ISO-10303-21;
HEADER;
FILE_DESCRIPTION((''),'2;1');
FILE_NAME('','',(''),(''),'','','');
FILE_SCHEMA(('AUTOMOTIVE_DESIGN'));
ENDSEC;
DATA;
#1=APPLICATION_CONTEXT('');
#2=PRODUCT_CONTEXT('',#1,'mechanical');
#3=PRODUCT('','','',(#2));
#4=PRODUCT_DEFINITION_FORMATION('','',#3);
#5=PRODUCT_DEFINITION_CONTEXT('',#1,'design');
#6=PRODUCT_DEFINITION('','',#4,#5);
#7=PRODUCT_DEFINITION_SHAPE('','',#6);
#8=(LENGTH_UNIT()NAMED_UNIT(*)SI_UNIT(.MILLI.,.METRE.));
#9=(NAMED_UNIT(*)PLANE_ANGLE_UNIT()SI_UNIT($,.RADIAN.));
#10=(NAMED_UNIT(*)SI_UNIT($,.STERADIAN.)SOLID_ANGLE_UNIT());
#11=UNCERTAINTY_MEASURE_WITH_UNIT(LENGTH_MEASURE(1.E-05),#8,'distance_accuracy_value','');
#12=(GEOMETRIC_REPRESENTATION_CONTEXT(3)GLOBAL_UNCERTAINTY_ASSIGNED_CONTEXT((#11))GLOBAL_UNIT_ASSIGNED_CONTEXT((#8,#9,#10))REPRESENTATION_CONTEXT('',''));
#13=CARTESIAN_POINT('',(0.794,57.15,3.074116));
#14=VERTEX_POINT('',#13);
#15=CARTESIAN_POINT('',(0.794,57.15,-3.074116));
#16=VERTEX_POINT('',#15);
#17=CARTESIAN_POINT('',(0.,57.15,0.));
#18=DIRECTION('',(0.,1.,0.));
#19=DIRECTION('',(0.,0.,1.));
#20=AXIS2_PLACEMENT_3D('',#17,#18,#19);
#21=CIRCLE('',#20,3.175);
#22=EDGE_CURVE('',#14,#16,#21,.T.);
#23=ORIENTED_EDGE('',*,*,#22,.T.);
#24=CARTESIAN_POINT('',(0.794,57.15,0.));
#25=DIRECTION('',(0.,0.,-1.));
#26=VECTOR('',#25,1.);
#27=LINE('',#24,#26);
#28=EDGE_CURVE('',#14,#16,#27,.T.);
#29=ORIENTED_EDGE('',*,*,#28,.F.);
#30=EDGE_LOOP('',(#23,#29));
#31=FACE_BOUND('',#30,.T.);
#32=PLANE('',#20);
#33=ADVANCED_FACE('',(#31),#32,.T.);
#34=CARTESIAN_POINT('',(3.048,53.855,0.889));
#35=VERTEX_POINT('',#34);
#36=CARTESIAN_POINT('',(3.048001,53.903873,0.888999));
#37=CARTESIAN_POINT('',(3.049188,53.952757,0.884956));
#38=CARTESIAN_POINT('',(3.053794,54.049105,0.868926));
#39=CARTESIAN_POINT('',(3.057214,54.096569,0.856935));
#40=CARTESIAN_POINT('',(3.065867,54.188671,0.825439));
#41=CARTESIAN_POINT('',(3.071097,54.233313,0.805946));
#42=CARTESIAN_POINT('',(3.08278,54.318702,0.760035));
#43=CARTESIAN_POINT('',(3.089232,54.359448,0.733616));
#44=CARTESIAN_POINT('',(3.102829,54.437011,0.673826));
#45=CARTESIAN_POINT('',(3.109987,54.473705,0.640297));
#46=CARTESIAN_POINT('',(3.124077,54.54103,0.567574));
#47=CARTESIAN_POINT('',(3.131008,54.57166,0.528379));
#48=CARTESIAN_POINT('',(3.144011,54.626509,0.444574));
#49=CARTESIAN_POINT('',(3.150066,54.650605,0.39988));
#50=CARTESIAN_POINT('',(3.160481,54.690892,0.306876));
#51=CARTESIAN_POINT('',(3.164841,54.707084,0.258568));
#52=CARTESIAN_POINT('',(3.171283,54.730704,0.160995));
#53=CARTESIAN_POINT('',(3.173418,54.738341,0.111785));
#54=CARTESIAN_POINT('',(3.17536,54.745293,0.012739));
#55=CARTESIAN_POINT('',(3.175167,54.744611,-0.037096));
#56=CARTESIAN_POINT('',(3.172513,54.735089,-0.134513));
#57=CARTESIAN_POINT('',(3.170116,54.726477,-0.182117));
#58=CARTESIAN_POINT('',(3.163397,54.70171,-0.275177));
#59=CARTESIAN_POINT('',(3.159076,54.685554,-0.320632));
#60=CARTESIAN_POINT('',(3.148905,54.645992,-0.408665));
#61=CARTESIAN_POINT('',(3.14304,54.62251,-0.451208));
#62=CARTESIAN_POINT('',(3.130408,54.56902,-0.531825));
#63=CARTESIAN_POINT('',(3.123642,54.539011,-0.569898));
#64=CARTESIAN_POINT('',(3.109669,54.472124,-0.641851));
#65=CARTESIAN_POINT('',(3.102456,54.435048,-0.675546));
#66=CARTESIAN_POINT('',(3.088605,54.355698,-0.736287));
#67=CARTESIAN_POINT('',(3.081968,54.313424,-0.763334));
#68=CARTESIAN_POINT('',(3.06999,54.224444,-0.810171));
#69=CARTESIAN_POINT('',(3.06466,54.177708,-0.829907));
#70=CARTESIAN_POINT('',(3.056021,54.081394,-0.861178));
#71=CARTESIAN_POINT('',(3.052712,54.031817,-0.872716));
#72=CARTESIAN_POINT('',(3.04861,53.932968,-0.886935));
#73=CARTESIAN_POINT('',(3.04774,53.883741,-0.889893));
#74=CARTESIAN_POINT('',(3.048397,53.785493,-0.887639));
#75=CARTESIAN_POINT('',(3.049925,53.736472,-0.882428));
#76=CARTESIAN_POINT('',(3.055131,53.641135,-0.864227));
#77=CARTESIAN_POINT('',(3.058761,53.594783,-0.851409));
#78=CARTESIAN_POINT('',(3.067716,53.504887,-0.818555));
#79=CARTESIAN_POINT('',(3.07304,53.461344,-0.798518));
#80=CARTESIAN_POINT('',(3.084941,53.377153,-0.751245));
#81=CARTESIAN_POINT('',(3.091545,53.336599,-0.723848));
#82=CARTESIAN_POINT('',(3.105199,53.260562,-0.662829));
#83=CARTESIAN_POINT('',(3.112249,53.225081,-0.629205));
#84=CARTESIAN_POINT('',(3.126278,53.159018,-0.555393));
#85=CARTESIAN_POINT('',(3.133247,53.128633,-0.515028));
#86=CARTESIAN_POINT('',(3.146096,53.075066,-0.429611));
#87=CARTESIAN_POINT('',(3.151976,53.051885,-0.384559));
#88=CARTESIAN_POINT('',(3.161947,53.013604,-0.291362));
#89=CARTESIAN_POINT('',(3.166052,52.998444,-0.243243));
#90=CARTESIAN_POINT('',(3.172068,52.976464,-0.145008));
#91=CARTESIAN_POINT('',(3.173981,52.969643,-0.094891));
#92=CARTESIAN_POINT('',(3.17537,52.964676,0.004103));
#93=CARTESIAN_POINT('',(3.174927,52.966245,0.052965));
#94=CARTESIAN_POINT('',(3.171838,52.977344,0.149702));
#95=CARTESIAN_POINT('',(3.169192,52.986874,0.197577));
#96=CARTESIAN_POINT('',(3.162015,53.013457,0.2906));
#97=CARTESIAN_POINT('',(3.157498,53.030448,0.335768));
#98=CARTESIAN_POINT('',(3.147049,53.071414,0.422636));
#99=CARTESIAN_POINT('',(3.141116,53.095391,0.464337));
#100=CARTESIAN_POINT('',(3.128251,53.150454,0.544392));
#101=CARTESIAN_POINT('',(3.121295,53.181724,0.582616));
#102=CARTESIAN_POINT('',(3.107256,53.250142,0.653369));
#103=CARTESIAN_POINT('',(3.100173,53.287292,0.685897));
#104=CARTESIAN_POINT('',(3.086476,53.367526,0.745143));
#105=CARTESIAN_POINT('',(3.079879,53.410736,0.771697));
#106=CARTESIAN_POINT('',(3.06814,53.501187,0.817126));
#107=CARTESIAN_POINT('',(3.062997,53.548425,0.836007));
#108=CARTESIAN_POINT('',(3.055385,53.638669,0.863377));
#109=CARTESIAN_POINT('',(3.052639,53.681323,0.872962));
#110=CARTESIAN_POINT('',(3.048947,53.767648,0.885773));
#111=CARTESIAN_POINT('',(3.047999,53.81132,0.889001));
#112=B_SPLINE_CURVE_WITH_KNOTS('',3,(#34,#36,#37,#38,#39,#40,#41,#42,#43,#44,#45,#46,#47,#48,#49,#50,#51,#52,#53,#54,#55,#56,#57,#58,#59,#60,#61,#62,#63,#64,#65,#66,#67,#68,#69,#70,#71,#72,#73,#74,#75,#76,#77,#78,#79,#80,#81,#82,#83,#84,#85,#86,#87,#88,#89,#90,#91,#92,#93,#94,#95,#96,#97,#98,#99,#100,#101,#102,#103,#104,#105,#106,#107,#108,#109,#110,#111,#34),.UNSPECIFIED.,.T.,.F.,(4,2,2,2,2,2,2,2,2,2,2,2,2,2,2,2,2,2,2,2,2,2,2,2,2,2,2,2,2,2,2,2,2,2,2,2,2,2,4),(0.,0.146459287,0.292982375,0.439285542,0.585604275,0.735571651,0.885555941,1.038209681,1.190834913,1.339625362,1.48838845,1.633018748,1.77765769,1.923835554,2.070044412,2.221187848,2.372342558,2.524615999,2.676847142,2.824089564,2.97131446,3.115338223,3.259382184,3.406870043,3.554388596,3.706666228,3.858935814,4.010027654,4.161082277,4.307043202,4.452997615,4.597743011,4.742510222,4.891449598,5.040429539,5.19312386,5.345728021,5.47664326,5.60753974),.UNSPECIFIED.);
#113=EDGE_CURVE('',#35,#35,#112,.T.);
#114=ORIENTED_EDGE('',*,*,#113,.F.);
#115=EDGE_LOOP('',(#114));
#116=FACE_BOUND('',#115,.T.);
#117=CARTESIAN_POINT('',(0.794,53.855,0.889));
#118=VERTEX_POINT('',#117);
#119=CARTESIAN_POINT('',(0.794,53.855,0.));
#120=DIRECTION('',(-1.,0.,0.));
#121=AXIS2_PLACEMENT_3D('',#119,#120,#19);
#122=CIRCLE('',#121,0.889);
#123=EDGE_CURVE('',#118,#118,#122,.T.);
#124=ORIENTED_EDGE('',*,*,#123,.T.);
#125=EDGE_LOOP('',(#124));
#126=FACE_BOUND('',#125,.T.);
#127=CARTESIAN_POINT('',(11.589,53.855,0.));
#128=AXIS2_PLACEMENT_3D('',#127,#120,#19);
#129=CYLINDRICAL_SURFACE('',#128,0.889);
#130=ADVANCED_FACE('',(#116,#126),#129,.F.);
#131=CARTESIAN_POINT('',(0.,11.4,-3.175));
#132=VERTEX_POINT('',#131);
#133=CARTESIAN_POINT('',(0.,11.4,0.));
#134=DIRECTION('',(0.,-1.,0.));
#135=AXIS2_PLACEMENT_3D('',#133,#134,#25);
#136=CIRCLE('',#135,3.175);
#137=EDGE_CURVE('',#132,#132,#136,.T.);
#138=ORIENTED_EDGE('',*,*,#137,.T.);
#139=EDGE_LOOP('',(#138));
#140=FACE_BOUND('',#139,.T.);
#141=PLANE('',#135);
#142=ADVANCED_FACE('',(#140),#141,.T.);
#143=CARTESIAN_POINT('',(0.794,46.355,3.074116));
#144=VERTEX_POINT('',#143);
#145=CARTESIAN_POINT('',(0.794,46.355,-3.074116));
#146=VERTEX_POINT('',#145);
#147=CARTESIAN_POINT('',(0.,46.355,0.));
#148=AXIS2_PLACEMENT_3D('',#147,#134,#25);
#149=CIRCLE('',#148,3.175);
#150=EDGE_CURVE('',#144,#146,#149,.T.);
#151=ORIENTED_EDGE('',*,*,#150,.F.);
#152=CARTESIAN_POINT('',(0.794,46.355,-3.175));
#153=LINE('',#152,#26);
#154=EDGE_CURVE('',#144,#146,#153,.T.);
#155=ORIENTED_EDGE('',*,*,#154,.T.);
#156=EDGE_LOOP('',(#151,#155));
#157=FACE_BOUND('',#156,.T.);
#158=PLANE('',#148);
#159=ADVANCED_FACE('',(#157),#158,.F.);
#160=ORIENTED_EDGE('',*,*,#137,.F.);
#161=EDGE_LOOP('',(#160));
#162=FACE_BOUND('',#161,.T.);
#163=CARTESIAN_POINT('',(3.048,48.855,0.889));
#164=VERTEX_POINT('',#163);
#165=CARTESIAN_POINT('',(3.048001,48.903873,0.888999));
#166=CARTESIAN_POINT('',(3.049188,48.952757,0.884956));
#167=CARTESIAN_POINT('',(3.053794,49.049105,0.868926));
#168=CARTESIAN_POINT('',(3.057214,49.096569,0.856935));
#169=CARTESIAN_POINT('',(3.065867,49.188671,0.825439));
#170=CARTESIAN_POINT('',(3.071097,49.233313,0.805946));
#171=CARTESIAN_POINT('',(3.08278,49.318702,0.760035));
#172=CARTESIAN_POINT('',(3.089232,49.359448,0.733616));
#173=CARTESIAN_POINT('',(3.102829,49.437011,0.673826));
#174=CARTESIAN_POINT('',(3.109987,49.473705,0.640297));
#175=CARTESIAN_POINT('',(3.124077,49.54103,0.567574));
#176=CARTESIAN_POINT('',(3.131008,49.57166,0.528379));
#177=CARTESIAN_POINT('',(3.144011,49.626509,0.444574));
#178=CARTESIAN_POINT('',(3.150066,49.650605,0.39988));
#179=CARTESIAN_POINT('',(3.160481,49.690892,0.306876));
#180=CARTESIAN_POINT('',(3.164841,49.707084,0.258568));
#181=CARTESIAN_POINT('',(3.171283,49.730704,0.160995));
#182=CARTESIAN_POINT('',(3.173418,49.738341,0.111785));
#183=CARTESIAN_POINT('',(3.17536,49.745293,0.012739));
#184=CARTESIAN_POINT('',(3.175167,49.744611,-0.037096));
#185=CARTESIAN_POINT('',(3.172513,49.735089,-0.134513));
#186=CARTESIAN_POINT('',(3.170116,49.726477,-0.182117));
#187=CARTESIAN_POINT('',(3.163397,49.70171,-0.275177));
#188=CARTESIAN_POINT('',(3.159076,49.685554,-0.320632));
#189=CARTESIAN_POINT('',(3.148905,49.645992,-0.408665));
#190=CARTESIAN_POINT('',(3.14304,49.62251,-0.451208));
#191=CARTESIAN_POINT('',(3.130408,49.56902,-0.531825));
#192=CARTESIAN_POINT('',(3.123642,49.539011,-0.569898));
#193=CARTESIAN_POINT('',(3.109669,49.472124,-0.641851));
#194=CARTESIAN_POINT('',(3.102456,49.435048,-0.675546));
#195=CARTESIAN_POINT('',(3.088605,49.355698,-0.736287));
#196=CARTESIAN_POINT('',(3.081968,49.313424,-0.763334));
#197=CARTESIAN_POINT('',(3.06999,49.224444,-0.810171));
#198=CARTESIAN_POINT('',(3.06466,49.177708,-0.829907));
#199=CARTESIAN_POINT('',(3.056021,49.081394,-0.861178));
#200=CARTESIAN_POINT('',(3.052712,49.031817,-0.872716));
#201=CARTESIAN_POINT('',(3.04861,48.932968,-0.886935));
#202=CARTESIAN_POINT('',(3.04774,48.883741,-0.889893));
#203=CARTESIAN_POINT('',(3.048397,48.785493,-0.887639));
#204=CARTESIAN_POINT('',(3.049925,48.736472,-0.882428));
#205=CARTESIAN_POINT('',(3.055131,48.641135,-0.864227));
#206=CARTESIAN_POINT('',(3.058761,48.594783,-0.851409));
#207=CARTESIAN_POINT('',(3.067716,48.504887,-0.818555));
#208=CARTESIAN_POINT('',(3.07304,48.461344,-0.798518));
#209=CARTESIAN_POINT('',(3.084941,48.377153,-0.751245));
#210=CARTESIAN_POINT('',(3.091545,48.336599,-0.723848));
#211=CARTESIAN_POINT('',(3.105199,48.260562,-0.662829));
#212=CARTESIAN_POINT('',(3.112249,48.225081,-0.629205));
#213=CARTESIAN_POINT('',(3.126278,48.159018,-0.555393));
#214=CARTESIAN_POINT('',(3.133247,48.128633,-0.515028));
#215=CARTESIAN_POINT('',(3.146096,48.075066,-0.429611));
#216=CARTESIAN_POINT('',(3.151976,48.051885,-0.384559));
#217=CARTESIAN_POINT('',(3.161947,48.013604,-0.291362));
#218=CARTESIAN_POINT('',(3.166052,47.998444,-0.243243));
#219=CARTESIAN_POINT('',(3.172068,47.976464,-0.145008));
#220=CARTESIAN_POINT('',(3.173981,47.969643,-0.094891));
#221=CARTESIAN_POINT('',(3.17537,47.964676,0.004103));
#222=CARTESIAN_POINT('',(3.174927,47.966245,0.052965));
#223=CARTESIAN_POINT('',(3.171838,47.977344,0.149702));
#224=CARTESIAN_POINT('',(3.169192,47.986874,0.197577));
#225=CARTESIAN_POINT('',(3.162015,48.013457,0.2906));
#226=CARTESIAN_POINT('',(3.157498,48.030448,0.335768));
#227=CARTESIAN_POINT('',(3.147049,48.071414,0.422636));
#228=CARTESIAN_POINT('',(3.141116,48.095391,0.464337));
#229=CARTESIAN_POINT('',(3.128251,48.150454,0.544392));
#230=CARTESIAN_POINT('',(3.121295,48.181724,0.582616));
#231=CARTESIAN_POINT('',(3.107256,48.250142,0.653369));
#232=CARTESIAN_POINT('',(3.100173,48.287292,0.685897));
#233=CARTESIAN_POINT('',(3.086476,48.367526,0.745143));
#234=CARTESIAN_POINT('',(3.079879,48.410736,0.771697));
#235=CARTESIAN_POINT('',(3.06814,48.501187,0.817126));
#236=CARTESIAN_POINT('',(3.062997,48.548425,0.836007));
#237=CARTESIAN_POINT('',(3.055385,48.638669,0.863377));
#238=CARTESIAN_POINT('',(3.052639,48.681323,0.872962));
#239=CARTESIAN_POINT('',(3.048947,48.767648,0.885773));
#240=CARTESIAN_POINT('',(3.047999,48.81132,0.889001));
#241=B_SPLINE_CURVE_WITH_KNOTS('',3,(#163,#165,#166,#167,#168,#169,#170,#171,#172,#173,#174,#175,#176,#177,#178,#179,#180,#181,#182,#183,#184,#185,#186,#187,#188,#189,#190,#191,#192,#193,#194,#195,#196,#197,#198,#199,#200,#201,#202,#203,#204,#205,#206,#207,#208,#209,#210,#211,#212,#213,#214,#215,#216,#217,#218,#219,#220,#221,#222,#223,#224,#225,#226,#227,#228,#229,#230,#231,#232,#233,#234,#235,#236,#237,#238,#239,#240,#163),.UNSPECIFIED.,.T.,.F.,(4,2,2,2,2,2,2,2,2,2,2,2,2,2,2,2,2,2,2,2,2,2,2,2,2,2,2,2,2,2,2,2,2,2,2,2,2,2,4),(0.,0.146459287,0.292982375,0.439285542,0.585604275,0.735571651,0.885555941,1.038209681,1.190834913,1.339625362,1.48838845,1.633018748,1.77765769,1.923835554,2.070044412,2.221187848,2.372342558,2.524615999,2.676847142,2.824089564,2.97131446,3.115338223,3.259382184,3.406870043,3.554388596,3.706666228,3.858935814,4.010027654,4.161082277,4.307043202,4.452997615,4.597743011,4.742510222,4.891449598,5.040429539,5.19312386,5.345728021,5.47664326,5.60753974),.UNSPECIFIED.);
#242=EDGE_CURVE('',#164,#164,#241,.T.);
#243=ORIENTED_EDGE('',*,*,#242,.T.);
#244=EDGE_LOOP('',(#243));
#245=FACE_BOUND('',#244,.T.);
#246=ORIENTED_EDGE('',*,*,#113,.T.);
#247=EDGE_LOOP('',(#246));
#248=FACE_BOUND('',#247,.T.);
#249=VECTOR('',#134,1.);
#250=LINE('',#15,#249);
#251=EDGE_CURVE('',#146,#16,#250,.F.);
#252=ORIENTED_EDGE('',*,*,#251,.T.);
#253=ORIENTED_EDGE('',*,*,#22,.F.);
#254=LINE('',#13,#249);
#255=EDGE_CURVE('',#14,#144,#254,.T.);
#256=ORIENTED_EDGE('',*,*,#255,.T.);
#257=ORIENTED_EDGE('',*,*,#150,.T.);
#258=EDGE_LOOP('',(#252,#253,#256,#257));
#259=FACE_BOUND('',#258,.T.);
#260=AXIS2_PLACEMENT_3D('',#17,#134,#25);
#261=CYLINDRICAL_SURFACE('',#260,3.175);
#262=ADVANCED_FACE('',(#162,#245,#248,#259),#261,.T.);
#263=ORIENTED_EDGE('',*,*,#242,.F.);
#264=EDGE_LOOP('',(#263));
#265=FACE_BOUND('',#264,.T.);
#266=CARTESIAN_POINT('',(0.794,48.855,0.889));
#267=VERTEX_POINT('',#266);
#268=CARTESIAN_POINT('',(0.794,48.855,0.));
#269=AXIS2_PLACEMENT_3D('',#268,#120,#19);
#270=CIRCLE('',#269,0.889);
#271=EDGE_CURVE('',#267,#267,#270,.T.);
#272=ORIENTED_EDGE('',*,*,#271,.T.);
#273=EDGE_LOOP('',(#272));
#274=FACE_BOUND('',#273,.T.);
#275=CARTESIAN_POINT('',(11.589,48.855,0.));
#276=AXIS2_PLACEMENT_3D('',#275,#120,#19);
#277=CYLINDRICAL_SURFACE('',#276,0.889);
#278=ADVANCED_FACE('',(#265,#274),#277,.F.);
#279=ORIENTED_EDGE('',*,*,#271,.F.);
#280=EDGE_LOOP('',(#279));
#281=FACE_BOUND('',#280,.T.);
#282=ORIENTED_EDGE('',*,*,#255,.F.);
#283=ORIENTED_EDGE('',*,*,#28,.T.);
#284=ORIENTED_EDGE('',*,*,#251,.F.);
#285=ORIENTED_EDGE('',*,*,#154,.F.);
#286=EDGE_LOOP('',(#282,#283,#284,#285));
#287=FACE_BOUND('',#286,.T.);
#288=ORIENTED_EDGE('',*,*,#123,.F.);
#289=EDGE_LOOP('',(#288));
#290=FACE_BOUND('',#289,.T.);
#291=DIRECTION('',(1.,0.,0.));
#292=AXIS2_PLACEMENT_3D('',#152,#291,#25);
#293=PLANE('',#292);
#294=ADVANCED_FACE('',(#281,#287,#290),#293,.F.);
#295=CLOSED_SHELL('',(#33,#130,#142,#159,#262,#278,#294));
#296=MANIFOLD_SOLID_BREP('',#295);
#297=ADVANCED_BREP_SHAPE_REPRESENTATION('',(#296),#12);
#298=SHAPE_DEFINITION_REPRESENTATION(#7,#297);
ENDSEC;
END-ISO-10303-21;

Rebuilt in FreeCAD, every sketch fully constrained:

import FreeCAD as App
import Part
import Sketcher

V = App.Vector
Q = App.Units.Quantity


def add_polygon(sketch, points):
    """Adds a closed chain of lines whose ends are joined by coincident constraints."""
    first, n = sketch.GeometryCount, len(points)
    for a, b in zip(points, points[1:] + points[:1]):
        sketch.addGeometry(Part.LineSegment(App.Vector(*a, 0), App.Vector(*b, 0)), False)
    for i in range(n):
        sketch.addConstraint(Sketcher.Constraint("Coincident", first + i, 2, first + (i + 1) % n, 1))

doc = App.newDocument("Part")
body = doc.addObject("PartDesign::Body", "Body")

# Sketch on XZ plane
sketch1 = body.newObject("Sketcher::SketchObject", "Sketch")
sketch1.AttachmentSupport = (doc.getObject("XZ_Plane"), [""])
sketch1.MapMode = "FlatFace"
sketch1.addGeometry(Part.Circle(V(0, 0, 0), V(0, 0, 1), 3.2), False)
sketch1.addConstraint([
    Sketcher.Constraint("Coincident", 0, 3, -1, 1),
    Sketcher.Constraint("Diameter", 0, Q("0.25 in")),
])
pad1 = body.newObject("PartDesign::Pad", "Pad")
pad1.Profile = sketch1
pad1.Length = Q("2.25 in")
pad1.Reversed = True

# Sketch on XZ plane
sketch2 = body.newObject("Sketcher::SketchObject", "Sketch001")
sketch2.AttachmentSupport = (doc.getObject("XZ_Plane"), [""])
sketch2.MapMode = "FlatFace"
sketch2.AttachmentOffset = App.Placement(V(0, 0, -2.25 * 25.4), App.Rotation())
add_polygon(sketch2, [(0.8, -3.2), (-3.2, -3.2), (-3.2, 3.2), (0.8, 3.2)])  # lines 0-3
sketch2.addConstraint([
    Sketcher.Constraint("Horizontal", 0),
    Sketcher.Constraint("Vertical", 1),
    Sketcher.Constraint("Horizontal", 2),
    Sketcher.Constraint("Vertical", 3),
    Sketcher.Constraint("DistanceY", 1, 1, 1, 2, Q("0.25 in")),
    Sketcher.Constraint("DistanceX", 0, 2, -1, 1, Q("0.125 in")),
    Sketcher.Constraint("DistanceY", 0, 2, -1, 1, Q("0.125 in")),
    Sketcher.Constraint("DistanceX", 0, 2, 0, 1, Q("3.969 mm")),
])
pocket1 = body.newObject("PartDesign::Pocket", "Pocket")
pocket1.Profile = sketch2
pocket1.Length = Q("0.425 in")
pocket1.Reversed = True

# Sketch on YZ plane
sketch3 = body.newObject("Sketcher::SketchObject", "Sketch002")
sketch3.AttachmentSupport = (doc.getObject("YZ_Plane"), [""])
sketch3.MapMode = "FlatFace"
sketch3.AttachmentOffset = App.Placement(V(0, 0, 0.794), App.Rotation())
sketch3.addGeometry([
    Part.Circle(V(53.9, 0, 0), V(0, 0, 1), 0.9),
    Part.Circle(V(48.9, 0, 0), V(0, 0, 1), 0.9),
], False)
sketch3.addConstraint([
    Sketcher.Constraint("Equal", 0, 1),
    Sketcher.Constraint("PointOnObject", 0, 3, -1),
    Sketcher.Constraint("PointOnObject", 1, 3, -1),
    Sketcher.Constraint("Diameter", 0, Q("0.07 in")),
    Sketcher.Constraint("DistanceX", -1, 1, 0, 3, Q("53.855 mm")),
    Sketcher.Constraint("DistanceX", -1, 1, 1, 3, Q("48.855 mm")),
])
pocket2 = body.newObject("PartDesign::Pocket", "Pocket001")
pocket2.Profile = sketch3
pocket2.Length = Q("0.425 in")
pocket2.Reversed = True

# Sketch on XZ plane
sketch4 = body.newObject("Sketcher::SketchObject", "Sketch003")
sketch4.AttachmentSupport = (doc.getObject("XZ_Plane"), [""])
sketch4.MapMode = "FlatFace"
add_polygon(sketch4, [(-2, -2.4), (-2, -3.2), (1.9, -3.2), (1.9, -2.4)])  # lines 0-3
sketch4.addConstraint([
    Sketcher.Constraint("Vertical", 0),
    Sketcher.Constraint("Horizontal", 1),
    Sketcher.Constraint("Vertical", 2),
    Sketcher.Constraint("Horizontal", 3),
    Sketcher.Constraint("DistanceY", 0, 2, 0, 1, Q("0.03125 in")),
    Sketcher.Constraint("DistanceY", 0, 2, -1, 1, Q("0.125 in")),
    Sketcher.Constraint("DistanceX", 1, 1, 1, 2, Q("3.926157 mm")),
    Sketcher.Constraint("DistanceX", 0, 2, -1, 1, Q("1.981089 mm")),
])
pocket3 = body.newObject("PartDesign::Pocket", "Pocket002")
pocket3.Profile = sketch4
pocket3.Length = 8.573

# Sketch on XZ plane
sketch5 = body.newObject("Sketcher::SketchObject", "Sketch004")
sketch5.AttachmentSupport = (doc.getObject("XZ_Plane"), [""])
sketch5.MapMode = "FlatFace"
sketch5.addGeometry(Part.Circle(V(0, 0, 0), V(0, 0, 1), 3.8), False)
sketch5.addConstraint([
    Sketcher.Constraint("Coincident", 0, 3, -1, 1),
    Sketcher.Constraint("Diameter", 0, Q("7.549778 mm")),
])
pocket4 = body.newObject("PartDesign::Pocket", "Pocket003")
pocket4.Profile = sketch5
pocket4.Length = 11.4

doc.recompute()
